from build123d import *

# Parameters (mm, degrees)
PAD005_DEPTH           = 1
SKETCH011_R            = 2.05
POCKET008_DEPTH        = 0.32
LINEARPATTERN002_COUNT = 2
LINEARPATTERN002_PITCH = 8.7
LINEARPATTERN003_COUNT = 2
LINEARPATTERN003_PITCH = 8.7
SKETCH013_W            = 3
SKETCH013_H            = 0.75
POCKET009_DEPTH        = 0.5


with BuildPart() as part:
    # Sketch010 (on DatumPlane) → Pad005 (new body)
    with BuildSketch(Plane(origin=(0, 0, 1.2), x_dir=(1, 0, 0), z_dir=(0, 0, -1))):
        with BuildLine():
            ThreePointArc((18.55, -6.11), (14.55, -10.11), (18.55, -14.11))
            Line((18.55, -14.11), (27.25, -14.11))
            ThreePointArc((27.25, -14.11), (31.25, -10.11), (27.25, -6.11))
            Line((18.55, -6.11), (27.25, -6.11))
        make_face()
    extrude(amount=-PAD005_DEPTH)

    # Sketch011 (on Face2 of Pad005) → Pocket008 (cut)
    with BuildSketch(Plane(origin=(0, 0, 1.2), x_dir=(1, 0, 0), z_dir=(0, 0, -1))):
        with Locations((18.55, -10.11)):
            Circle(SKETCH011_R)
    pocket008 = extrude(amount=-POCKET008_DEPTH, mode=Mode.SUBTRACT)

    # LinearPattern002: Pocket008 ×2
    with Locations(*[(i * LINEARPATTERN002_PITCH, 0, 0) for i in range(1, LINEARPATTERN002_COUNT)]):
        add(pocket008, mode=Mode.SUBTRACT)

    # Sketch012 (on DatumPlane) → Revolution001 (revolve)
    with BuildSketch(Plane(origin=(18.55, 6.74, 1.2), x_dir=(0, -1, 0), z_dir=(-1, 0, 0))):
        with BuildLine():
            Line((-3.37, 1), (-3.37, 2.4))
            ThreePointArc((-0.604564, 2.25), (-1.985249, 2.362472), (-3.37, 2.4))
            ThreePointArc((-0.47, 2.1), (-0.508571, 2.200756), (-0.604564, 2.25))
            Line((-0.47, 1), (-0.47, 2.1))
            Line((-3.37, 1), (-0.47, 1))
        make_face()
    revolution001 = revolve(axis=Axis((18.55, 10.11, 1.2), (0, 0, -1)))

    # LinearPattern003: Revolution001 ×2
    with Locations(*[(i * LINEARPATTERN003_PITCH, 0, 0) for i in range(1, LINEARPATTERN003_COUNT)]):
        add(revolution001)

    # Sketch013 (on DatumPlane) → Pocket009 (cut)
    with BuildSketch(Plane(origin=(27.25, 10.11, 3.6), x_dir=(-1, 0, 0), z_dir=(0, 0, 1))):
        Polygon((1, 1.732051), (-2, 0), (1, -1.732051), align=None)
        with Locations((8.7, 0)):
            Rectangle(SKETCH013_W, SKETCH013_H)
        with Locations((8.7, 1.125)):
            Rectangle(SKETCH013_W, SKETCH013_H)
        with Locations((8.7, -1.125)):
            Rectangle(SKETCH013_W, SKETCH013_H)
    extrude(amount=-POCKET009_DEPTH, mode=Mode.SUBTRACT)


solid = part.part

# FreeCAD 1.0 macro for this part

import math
import FreeCAD as App
import Part
import Sketcher
Q = App.Units.Quantity

doc = App.newDocument("Part")
params = doc.addObject("Spreadsheet::Sheet", "Params")
for row, (alias, value) in enumerate([
    ("sketch1_radius", "4 mm"),
    ("sketch1_width", "8.7 mm"),
    ("pad1_length", "1 mm"),
    ("sketch2_diameter", "4.1 mm"),
    ("pocket1_length", "0.32 mm"),
    ("linearpattern_pitch", "8.7 mm"),
    ("sketch3_width", "2.9 mm"),
    ("sketch3_height", "1.4 mm"),
    ("sketch3_height2", "1.1 mm"),
    ("revolution_angle", "360 deg"),
    ("linearpattern2_pitch", "8.7 mm"),
    ("sketch4_width", "3 mm"),
    ("sketch4_height", "0.75 mm"),
    ("pocket2_length", "0.5 mm"),
], start=1):
    params.set(f"A{row}", alias)
    params.set(f"B{row}", "=" + value)
    params.setAlias(f"B{row}", alias)

body = doc.addObject("PartDesign::Body", "Body")

# Sketch on XY plane
sketch1 = doc.addObject("Sketcher::SketchObject", "Sketch")
body.addObject(sketch1)
sketch1.AttachmentSupport = (doc.XY_Plane, [""])
sketch1.MapMode = "FlatFace"
sketch1.AttachmentOffset = App.Placement(App.Vector(0, 0, 1.2), App.Rotation())
sketch1.addGeometry([
    Part.ArcOfCircle(Part.Circle(App.Vector(18.6, 10.1, 0), App.Vector(0, 0, 1), 4), math.radians(90), math.radians(270)),
    Part.LineSegment(App.Vector(18.6, 14.1, 0), App.Vector(27.2, 14.1, 0)),
    Part.ArcOfCircle(Part.Circle(App.Vector(27.2, 10.1, 0), App.Vector(0, 0, 1), 4), math.radians(-90), math.radians(90)),
    Part.LineSegment(App.Vector(27.2, 6.1, 0), App.Vector(18.6, 6.1, 0)),
], False)
sketch1.addConstraint([
    Sketcher.Constraint("Tangent", 0, 1, 1, 1),
    Sketcher.Constraint("Tangent", 1, 2, 2, 2),
    Sketcher.Constraint("Tangent", 2, 1, 3, 1),
    Sketcher.Constraint("Tangent", 3, 2, 0, 2),
    Sketcher.Constraint("Horizontal", 1),
    Sketcher.Constraint("Horizontal", 3),
    Sketcher.Constraint("Radius", 0, Q("4 mm")),
    Sketcher.Constraint("DistanceX", 1, 1, 1, 2, Q("8.7 mm")),
    Sketcher.Constraint("DistanceX", -1, 1, 0, 3, Q("18.55 mm")),
    Sketcher.Constraint("DistanceY", -1, 1, 0, 3, Q("10.11 mm")),
])
sketch1.setExpression("Constraints[6]", "Params.sketch1_radius")
sketch1.setExpression("Constraints[7]", "Params.sketch1_width")
pad1 = doc.addObject("PartDesign::Pad", "Pad")
body.addObject(pad1)
pad1.Profile = sketch1
pad1.setExpression("Length", "Params.pad1_length")

# Sketch on XY plane
sketch2 = doc.addObject("Sketcher::SketchObject", "Sketch001")
body.addObject(sketch2)
sketch2.AttachmentSupport = (doc.XY_Plane, [""])
sketch2.MapMode = "FlatFace"
sketch2.AttachmentOffset = App.Placement(App.Vector(0, 0, 1.2), App.Rotation())
sketch2.addGeometry(Part.Circle(App.Vector(18.6, 10.1, 0), App.Vector(0, 0, 1), 2), False)
sketch2.addConstraint([
    Sketcher.Constraint("Diameter", 0, Q("4.1 mm")),
    Sketcher.Constraint("DistanceX", -1, 1, 0, 3, Q("18.55 mm")),
    Sketcher.Constraint("DistanceY", -1, 1, 0, 3, Q("10.11 mm")),
])
sketch2.setExpression("Constraints[0]", "Params.sketch2_diameter")
pocket1 = doc.addObject("PartDesign::Pocket", "Pocket")
body.addObject(pocket1)
pocket1.Profile = sketch2
pocket1.setExpression("Length", "Params.pocket1_length")
pocket1.Reversed = True
doc.recompute()

linearpattern = doc.addObject("PartDesign::LinearPattern", "LinearPattern")
body.addObject(linearpattern)
linearpattern.Originals = [pocket1]
linearpattern.Direction = (doc.X_Axis, [""])
linearpattern.Mode = "offset"
linearpattern.setExpression("Offset", "Params.linearpattern_pitch")
linearpattern.Occurrences = 2
body.Tip = linearpattern

# Sketch on YZ plane
sketch3 = doc.addObject("Sketcher::SketchObject", "Sketch002")
body.addObject(sketch3)
sketch3.AttachmentSupport = (doc.YZ_Plane, [""])
sketch3.MapMode = "FlatFace"
sketch3.AttachmentOffset = App.Placement(App.Vector(0, 0, 18.55), App.Rotation())
sketch3.addGeometry([
    Part.LineSegment(App.Vector(10.11, 3.6, 0), App.Vector(10.11, 2.2, 0)),  # 0
    Part.LineSegment(App.Vector(10.11, 2.2, 0), App.Vector(7.21, 2.2, 0)),  # 1
    Part.LineSegment(App.Vector(7.21, 2.2, 0), App.Vector(7.21, 3.3, 0)),  # 2
    Part.ArcOfCircle(Part.Circle(App.Vector(7.36, 3.3, 0), App.Vector(0, 0, 1), 0.15), math.radians(96), math.radians(180)),  # 3
    Part.ArcOfCircle(Part.Circle(App.Vector(10.11, -21.97, 0), App.Vector(0, 0, 1), 25.57), math.radians(90), math.radians(96.21)),  # 4
], False)
sketch3.addGeometry(Part.LineSegment(App.Vector(10.11, 3.6, 0), App.Vector(10.11, -21.97, 0)), True)  # axis
sketch3.addConstraint([
    Sketcher.Constraint("Coincident", 0, 2, 1, 1),
    Sketcher.Constraint("Coincident", 1, 2, 2, 1),
    Sketcher.Constraint("Coincident", 2, 2, 3, 2),
    Sketcher.Constraint("Coincident", 3, 1, 4, 2),
    Sketcher.Constraint("Coincident", 4, 1, 0, 1),
    Sketcher.Constraint("Vertical", 0),
    Sketcher.Constraint("Horizontal", 1),
    Sketcher.Constraint("Vertical", 2),
    Sketcher.Constraint("Vertical", 5),
    Sketcher.Constraint("Coincident", 5, 1, 4, 1),
    Sketcher.Constraint("Horizontal", 3, 3, 2, 2),
    Sketcher.Constraint("Horizontal", 4, 3, 5, 2),
    Sketcher.Constraint("DistanceX", 1, 2, 1, 1, Q("2.9 mm")),
    Sketcher.Constraint("DistanceY", 0, 2, 0, 1, Q("1.4 mm")),
    Sketcher.Constraint("DistanceY", 2, 1, 2, 2, Q("1.1 mm")),
    Sketcher.Constraint("DistanceY", -1, 1, 3, 3, Q("3.299999 mm")),
    Sketcher.Constraint("DistanceX", -1, 1, 0, 2, Q("10.11 mm")),
    Sketcher.Constraint("DistanceY", -1, 1, 3, 1, Q("3.45 mm")),
    Sketcher.Constraint("Radius", 3, Q("0.150886 mm")),
    Sketcher.Constraint("Radius", 4, Q("25.567416 mm")),
])
sketch3.setExpression("Constraints[12]", "Params.sketch3_width")
sketch3.setExpression("Constraints[13]", "Params.sketch3_height")
sketch3.setExpression("Constraints[14]", "Params.sketch3_height2")
revolution = doc.addObject("PartDesign::Revolution", "Revolution")
body.addObject(revolution)
revolution.Profile = sketch3
revolution.ReferenceAxis = (sketch3, ["Axis0"])
revolution.setExpression("Angle", "Params.revolution_angle")
doc.recompute()

linearpattern2 = doc.addObject("PartDesign::LinearPattern", "LinearPattern001")
body.addObject(linearpattern2)
linearpattern2.Originals = [revolution]
linearpattern2.Direction = (doc.X_Axis, [""])
linearpattern2.Mode = "offset"
linearpattern2.setExpression("Offset", "Params.linearpattern2_pitch")
linearpattern2.Occurrences = 2
body.Tip = linearpattern2

# Sketch on XY plane
sketch4 = doc.addObject("Sketcher::SketchObject", "Sketch003")
body.addObject(sketch4)
sketch4.AttachmentSupport = (doc.XY_Plane, [""])
sketch4.MapMode = "FlatFace"
sketch4.AttachmentOffset = App.Placement(App.Vector(0, 0, 3.6), App.Rotation())
sketch4.addGeometry([
    Part.LineSegment(App.Vector(26.2, 8.4, 0), App.Vector(29.2, 10.1, 0)),  # 0
    Part.LineSegment(App.Vector(29.2, 10.1, 0), App.Vector(26.2, 11.8, 0)),  # 1
    Part.LineSegment(App.Vector(26.2, 11.8, 0), App.Vector(26.2, 8.4, 0)),  # 2
    Part.LineSegment(App.Vector(20.1, 9.7, 0), App.Vector(20.1, 10.5, 0)),  # 3
    Part.LineSegment(App.Vector(20.1, 10.5, 0), App.Vector(17.1, 10.5, 0)),  # 4
    Part.LineSegment(App.Vector(17.1, 10.5, 0), App.Vector(17.1, 9.7, 0)),  # 5
    Part.LineSegment(App.Vector(17.1, 9.7, 0), App.Vector(20.1, 9.7, 0)),  # 6
    Part.LineSegment(App.Vector(20.1, 8.6, 0), App.Vector(20.1, 9.4, 0)),  # 7
    Part.LineSegment(App.Vector(20.1, 9.4, 0), App.Vector(17.1, 9.4, 0)),  # 8
    Part.LineSegment(App.Vector(17.1, 9.4, 0), App.Vector(17.1, 8.6, 0)),  # 9
    Part.LineSegment(App.Vector(17.1, 8.6, 0), App.Vector(20.1, 8.6, 0)),  # 10
    Part.LineSegment(App.Vector(20.1, 10.9, 0), App.Vector(20.1, 11.6, 0)),  # 11
    Part.LineSegment(App.Vector(20.1, 11.6, 0), App.Vector(17.1, 11.6, 0)),  # 12
    Part.LineSegment(App.Vector(17.1, 11.6, 0), App.Vector(17.1, 10.9, 0)),  # 13
    Part.LineSegment(App.Vector(17.1, 10.9, 0), App.Vector(20.1, 10.9, 0)),  # 14
], False)
sketch4.addConstraint([
    Sketcher.Constraint("Coincident", 0, 2, 1, 1),
    Sketcher.Constraint("Coincident", 1, 2, 2, 1),
    Sketcher.Constraint("Coincident", 2, 2, 0, 1),
    Sketcher.Constraint("Coincident", 3, 2, 4, 1),
    Sketcher.Constraint("Coincident", 4, 2, 5, 1),
    Sketcher.Constraint("Coincident", 5, 2, 6, 1),
    Sketcher.Constraint("Coincident", 6, 2, 3, 1),
    Sketcher.Constraint("Coincident", 7, 2, 8, 1),
    Sketcher.Constraint("Coincident", 8, 2, 9, 1),
    Sketcher.Constraint("Coincident", 9, 2, 10, 1),
    Sketcher.Constraint("Coincident", 10, 2, 7, 1),
    Sketcher.Constraint("Coincident", 11, 2, 12, 1),
    Sketcher.Constraint("Coincident", 12, 2, 13, 1),
    Sketcher.Constraint("Coincident", 13, 2, 14, 1),
    Sketcher.Constraint("Coincident", 14, 2, 11, 1),
    Sketcher.Constraint("Vertical", 2),
    Sketcher.Constraint("Vertical", 3),
    Sketcher.Constraint("Horizontal", 4),
    Sketcher.Constraint("Vertical", 5),
    Sketcher.Constraint("Horizontal", 6),
    Sketcher.Constraint("Vertical", 7),
    Sketcher.Constraint("Horizontal", 8),
    Sketcher.Constraint("Vertical", 9),
    Sketcher.Constraint("Horizontal", 10),
    Sketcher.Constraint("Vertical", 11),
    Sketcher.Constraint("Horizontal", 12),
    Sketcher.Constraint("Vertical", 13),
    Sketcher.Constraint("Horizontal", 14),
    Sketcher.Constraint("Vertical", 6, 2, 7, 2),
    Sketcher.Constraint("Vertical", 5, 2, 8, 2),
    Sketcher.Constraint("Vertical", 10, 2, 11, 2),
    Sketcher.Constraint("Vertical", 9, 2, 12, 2),
    Sketcher.Constraint("Equal", 5, 7),
    Sketcher.Constraint("Equal", 9, 11),
    Sketcher.Constraint("Equal", 0, 1),
    Sketcher.Constraint("DistanceX", 4, 2, 4, 1, Q("3 mm")),
    Sketcher.Constraint("Angle", 0, Q("30.000003 deg")),
    Sketcher.Constraint("DistanceX", 1, 2, 0, 2, Q("3 mm")),
    Sketcher.Constraint("DistanceY", 10, 2, 11, 2, Q("3 mm")),
    Sketcher.Constraint("DistanceY", 3, 1, 3, 2, Q("0.75 mm")),
    Sketcher.Constraint("DistanceX", 3, 2, 1, 2, Q("6.2 mm")),
    Sketcher.Constraint("DistanceX", -1, 1, 0, 2, Q("29.25 mm")),
    Sketcher.Constraint("DistanceY", -1, 1, 0, 2, Q("10.11 mm")),
    Sketcher.Constraint("DistanceY", -1, 1, 7, 2, Q("9.36 mm")),
    Sketcher.Constraint("DistanceY", -1, 1, 3, 2, Q("10.485 mm")),
])
sketch4.setExpression("Constraints[35]", "Params.sketch4_width")
sketch4.setExpression("Constraints[39]", "Params.sketch4_height")
pocket2 = doc.addObject("PartDesign::Pocket", "Pocket001")
body.addObject(pocket2)
pocket2.Profile = sketch4
pocket2.setExpression("Length", "Params.pocket2_length")

doc.recompute()
